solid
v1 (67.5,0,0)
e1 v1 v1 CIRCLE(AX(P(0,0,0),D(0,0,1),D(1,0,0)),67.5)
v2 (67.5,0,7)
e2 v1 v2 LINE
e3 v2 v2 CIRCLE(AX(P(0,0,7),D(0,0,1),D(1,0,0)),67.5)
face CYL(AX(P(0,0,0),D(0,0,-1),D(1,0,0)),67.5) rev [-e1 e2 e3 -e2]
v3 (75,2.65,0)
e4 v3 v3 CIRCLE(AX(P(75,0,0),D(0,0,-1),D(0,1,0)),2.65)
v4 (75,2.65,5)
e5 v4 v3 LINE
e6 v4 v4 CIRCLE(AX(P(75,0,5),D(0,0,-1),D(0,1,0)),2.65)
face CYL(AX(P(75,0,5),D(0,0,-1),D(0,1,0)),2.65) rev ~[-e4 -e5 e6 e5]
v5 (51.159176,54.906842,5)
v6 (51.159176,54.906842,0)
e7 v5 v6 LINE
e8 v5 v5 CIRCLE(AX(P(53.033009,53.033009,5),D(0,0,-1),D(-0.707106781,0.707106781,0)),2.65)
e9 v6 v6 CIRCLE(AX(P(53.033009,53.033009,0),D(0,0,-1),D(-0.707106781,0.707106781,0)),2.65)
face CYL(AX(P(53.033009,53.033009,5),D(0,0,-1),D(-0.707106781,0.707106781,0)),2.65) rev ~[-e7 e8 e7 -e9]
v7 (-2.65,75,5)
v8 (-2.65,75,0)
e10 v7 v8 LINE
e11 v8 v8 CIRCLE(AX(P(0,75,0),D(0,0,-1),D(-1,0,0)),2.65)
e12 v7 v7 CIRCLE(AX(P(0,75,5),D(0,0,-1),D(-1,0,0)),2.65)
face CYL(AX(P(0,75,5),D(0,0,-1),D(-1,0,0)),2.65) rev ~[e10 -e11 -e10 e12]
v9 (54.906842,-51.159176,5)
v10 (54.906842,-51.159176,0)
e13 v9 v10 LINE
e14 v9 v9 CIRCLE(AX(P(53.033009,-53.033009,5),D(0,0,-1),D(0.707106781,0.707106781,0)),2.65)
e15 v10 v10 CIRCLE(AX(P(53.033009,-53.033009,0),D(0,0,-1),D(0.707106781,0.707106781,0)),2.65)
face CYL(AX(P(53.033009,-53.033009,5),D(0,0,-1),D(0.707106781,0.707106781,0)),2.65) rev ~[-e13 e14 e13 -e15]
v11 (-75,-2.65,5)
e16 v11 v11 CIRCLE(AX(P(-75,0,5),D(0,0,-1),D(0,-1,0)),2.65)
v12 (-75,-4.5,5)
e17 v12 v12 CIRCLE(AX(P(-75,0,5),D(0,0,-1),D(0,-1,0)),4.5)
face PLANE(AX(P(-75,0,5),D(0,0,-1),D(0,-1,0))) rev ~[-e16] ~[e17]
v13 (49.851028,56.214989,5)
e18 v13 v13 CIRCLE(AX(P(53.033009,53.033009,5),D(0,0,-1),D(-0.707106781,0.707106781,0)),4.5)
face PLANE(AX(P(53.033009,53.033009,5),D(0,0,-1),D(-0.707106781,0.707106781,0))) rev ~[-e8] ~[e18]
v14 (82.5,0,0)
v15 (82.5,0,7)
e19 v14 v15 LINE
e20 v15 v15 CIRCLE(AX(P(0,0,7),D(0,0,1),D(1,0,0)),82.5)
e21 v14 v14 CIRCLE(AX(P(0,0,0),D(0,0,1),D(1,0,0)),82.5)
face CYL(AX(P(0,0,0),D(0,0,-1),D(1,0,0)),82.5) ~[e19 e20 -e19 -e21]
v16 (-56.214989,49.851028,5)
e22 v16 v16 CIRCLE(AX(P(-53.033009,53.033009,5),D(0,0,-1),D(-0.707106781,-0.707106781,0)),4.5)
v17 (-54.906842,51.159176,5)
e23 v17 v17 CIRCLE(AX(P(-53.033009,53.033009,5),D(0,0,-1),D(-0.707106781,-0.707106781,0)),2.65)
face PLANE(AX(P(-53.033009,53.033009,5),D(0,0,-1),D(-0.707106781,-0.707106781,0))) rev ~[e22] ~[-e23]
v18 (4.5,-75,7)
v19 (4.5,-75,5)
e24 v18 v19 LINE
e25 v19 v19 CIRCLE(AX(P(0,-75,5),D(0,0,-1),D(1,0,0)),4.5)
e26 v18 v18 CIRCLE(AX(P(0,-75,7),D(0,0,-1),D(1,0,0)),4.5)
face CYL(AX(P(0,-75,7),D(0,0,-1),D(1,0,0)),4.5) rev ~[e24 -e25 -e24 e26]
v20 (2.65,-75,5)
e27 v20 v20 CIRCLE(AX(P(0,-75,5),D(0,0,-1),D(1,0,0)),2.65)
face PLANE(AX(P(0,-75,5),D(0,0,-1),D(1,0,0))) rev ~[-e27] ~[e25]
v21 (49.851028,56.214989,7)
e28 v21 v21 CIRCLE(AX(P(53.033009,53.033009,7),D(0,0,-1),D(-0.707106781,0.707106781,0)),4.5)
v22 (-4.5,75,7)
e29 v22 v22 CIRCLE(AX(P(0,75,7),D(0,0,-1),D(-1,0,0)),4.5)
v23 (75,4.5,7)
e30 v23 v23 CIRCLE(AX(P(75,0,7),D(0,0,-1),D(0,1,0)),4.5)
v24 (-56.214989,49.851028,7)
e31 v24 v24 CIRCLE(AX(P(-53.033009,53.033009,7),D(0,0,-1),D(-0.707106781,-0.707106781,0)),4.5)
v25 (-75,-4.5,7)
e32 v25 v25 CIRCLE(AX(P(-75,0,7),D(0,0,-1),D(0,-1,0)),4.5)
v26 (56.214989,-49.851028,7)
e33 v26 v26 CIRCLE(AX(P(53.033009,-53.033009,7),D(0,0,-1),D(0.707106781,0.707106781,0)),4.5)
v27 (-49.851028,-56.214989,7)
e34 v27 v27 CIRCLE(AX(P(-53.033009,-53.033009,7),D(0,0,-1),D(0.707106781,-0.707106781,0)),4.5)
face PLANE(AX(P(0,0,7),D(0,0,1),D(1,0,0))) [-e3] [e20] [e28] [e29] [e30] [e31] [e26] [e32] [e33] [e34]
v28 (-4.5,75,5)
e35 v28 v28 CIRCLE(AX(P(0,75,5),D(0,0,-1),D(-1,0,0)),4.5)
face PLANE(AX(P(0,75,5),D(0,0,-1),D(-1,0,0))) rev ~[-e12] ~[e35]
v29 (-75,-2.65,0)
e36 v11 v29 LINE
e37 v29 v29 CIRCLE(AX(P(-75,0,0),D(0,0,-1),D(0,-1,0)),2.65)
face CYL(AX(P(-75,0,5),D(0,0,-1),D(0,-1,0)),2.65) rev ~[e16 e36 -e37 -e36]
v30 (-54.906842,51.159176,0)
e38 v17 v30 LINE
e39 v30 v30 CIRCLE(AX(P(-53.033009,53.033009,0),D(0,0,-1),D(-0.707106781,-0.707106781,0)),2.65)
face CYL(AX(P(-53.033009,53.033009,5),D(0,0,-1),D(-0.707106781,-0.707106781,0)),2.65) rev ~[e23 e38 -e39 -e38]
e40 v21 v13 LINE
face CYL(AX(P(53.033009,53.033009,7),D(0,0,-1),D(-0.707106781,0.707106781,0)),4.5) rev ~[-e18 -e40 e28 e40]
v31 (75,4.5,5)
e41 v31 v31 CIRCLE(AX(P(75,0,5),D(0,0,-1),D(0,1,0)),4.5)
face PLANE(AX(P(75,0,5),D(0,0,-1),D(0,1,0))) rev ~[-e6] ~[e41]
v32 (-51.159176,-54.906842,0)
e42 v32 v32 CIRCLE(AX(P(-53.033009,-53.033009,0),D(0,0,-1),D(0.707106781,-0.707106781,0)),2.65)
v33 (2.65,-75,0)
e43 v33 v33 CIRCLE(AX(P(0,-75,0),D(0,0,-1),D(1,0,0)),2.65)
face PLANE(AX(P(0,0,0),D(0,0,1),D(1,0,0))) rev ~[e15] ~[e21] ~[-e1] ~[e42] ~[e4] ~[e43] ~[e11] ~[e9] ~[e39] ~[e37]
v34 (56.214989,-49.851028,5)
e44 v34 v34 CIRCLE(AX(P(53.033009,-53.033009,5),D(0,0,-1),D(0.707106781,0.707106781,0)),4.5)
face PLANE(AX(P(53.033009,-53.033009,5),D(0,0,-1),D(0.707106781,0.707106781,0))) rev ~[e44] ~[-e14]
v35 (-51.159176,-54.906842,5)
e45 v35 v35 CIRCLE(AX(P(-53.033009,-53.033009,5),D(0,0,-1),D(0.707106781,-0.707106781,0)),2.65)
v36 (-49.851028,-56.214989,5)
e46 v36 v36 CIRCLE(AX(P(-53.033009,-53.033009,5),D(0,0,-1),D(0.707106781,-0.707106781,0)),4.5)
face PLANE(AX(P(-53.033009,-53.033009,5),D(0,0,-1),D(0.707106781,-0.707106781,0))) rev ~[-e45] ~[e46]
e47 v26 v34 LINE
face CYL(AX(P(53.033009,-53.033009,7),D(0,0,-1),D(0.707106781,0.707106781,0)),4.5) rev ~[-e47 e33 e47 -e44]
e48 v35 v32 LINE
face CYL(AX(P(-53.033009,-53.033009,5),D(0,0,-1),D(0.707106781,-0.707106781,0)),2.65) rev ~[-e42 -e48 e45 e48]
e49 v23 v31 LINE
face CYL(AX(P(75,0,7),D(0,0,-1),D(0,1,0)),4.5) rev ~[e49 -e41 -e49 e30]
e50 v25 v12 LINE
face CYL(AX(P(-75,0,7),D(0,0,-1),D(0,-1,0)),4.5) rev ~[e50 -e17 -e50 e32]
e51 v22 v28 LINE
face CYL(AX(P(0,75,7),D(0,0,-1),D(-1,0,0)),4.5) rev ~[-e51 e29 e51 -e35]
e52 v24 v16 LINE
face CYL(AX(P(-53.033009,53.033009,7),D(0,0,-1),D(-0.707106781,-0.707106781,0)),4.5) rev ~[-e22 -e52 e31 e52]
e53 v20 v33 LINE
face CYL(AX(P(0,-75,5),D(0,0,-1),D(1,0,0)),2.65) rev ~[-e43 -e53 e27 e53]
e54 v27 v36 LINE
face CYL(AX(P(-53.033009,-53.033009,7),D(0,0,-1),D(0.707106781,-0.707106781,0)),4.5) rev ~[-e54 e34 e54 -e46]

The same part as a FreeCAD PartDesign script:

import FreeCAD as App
import Part
import Sketcher
from FreeCAD import Vector
Q = App.Units.Quantity

doc = App.newDocument("Part")
body = doc.addObject("PartDesign::Body", "Body")

# Sketch on XY plane
sketch1 = body.newObject("Sketcher::SketchObject", "Sketch")
sketch1.AttachmentSupport = (doc.getObject("XY_Plane"), [""])
sketch1.MapMode = "FlatFace"
sketch1.addGeometry([
    Part.Circle(Vector(0, 0, 0), Vector(0, 0, 1), 82),
    Part.Circle(Vector(0, 0, 0), Vector(0, 0, 1), 68),
], False)
sketch1.addConstraint([
    Sketcher.Constraint("Coincident", 0, 3, -1, 1),
    Sketcher.Constraint("Coincident", 1, 3, -1, 1),
    Sketcher.Constraint("Diameter", 1, Q("135 mm")),
    Sketcher.Constraint("Diameter", 0, Q("165 mm")),
])
pad1 = body.newObject("PartDesign::Pad", "Pad")
pad1.Profile = sketch1
pad1.Length = 7

# Sketch on XY plane
sketch2 = body.newObject("Sketcher::SketchObject", "Sketch001")
sketch2.AttachmentSupport = (doc.getObject("XY_Plane"), [""])
sketch2.MapMode = "FlatFace"
sketch2.AttachmentOffset = App.Placement(Vector(0, 0, 7), App.Rotation())
sketch2.addGeometry(Part.Circle(Vector(-75, 0, 0), Vector(0, 0, 1), 2.6), False)
sketch2.addConstraint([
    Sketcher.Constraint("PointOnObject", 0, 3, -1),
    Sketcher.Constraint("Diameter", 0, Q("5.3 mm")),
    Sketcher.Constraint("DistanceX", 0, 3, -1, 1, Q("75 mm")),
])
doc.recompute()
hole = body.newObject("PartDesign::Hole", "Hole")
hole.Profile = sketch2
hole.ThreadType = "None"
hole.Diameter = 5.3
hole.DepthType = "ThroughAll"
hole.HoleCutType = "Counterbore"
hole.HoleCutDiameter = 9
hole.HoleCutDepth = 2
doc.recompute()

polarpattern = body.newObject("PartDesign::PolarPattern", "PolarPattern")
polarpattern.Originals = [hole]
polarpattern.Axis = (doc.getObject("Z_Axis"), [""])
polarpattern.Angle = 360
polarpattern.Occurrences = 8
body.Tip = polarpattern

doc.recompute()
